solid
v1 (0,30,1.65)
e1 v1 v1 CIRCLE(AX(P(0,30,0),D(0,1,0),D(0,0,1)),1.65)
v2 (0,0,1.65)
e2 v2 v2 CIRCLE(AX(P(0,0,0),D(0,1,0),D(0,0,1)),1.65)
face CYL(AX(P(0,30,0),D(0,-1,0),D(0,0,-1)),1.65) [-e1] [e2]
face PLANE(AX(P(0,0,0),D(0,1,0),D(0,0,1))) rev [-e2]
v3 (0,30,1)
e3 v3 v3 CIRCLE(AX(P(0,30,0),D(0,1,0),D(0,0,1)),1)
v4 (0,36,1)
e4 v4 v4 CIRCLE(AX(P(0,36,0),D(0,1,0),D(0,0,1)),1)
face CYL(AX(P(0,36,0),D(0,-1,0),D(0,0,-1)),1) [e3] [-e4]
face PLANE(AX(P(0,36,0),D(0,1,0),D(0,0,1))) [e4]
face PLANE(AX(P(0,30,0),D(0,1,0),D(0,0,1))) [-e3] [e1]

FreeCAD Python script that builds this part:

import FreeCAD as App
import Part
import Sketcher
from FreeCAD import Vector

doc = App.newDocument("Part")
params = doc.addObject("Spreadsheet::Sheet", "Params")
for row, (alias, value) in enumerate([
    ("sketch1_diameter", "3.3 mm"),
    ("pad1_length", "30 mm"),
    ("sketch2_diameter", "2 mm"),
    ("pad2_length", "6 mm"),
], start=1):
    params.set(f"A{row}", alias)
    params.set(f"B{row}", "=" + value)
    params.setAlias(f"B{row}", alias)

body = doc.addObject("PartDesign::Body", "Body")

sketch1 = body.newObject("Sketcher::SketchObject", "Sketch")
sketch1.AttachmentSupport = (doc.getObject("XZ_Plane"), [""])
sketch1.MapMode = "FlatFace"
sketch1.addGeometry(Part.Circle(Vector(0, 0, 0), Vector(0, 0, 1), 1.65), False)
sketch1.addConstraint([
    Sketcher.Constraint("Coincident", 0, 3, -1, 1),
    Sketcher.Constraint("Diameter", 0, 3.3),
])
sketch1.setExpression("Constraints[1]", "Params.sketch1_diameter")
pad1 = body.newObject("PartDesign::Pad", "Pad")
pad1.Profile = sketch1
pad1.setExpression("Length", "Params.pad1_length")
pad1.Reversed = True

sketch2 = body.newObject("Sketcher::SketchObject", "Sketch001")
sketch2.AttachmentSupport = (doc.getObject("XZ_Plane"), [""])
sketch2.MapMode = "FlatFace"
sketch2.AttachmentOffset = App.Placement(Vector(0, 0, -30), App.Rotation())
sketch2.addGeometry(Part.Circle(Vector(0, 0, 0), Vector(0, 0, 1), 1), False)
sketch2.addConstraint([
    Sketcher.Constraint("Coincident", 0, 3, -1, 1),
    Sketcher.Constraint("Diameter", 0, 2.0),
])
sketch2.setExpression("Constraints[1]", "Params.sketch2_diameter")
pad2 = body.newObject("PartDesign::Pad", "Pad001")
pad2.Profile = sketch2
pad2.setExpression("Length", "Params.pad2_length")
pad2.Reversed = True

doc.recompute()
